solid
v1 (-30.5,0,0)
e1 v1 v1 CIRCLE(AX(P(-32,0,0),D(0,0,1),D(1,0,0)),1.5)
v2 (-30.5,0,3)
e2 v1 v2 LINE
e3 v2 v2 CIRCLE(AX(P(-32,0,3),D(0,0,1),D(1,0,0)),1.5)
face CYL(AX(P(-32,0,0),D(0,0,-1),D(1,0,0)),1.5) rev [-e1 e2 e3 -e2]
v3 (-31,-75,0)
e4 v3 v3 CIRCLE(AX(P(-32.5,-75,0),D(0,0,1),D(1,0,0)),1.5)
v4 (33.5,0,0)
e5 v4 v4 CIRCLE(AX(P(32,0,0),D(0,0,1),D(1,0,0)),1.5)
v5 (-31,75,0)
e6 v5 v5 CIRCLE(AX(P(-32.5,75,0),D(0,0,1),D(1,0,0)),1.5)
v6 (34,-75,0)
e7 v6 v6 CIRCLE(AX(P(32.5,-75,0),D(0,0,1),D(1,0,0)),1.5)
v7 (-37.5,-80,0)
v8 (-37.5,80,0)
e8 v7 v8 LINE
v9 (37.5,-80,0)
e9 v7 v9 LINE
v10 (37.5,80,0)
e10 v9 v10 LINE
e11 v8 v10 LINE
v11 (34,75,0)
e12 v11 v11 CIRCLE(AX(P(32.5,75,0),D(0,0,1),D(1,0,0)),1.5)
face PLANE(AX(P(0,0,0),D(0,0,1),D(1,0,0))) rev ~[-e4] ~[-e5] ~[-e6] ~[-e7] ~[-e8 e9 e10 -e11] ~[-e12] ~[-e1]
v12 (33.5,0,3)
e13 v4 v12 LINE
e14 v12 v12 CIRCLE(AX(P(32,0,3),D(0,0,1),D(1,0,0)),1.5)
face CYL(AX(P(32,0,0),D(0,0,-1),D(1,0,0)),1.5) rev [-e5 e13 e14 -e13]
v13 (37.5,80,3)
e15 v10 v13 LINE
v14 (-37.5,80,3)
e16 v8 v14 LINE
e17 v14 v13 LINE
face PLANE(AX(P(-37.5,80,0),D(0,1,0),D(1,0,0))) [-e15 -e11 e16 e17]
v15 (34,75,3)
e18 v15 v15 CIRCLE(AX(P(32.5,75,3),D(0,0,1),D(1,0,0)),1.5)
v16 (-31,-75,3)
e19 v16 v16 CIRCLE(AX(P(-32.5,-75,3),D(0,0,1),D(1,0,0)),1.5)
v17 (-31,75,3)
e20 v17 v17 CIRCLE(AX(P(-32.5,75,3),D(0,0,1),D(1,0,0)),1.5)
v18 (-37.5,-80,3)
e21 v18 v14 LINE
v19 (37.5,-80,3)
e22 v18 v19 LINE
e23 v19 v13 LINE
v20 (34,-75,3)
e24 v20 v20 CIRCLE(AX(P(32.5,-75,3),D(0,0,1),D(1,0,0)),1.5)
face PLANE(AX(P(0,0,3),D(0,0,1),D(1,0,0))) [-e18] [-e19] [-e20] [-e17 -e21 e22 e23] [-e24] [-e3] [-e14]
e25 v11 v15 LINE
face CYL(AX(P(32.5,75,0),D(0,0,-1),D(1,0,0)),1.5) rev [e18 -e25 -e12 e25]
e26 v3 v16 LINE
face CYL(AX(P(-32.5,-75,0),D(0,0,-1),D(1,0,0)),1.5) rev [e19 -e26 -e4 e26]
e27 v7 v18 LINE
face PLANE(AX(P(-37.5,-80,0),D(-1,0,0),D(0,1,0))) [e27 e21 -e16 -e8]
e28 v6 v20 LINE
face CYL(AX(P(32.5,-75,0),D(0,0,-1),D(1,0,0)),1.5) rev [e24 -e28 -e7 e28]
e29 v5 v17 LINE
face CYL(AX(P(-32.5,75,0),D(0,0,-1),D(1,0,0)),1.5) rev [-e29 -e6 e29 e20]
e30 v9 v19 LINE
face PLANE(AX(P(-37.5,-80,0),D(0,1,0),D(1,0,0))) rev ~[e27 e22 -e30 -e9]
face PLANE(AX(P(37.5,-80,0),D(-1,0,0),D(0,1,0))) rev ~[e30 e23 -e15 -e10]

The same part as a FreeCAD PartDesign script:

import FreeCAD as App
import Part
import Sketcher

V = App.Vector
Q = App.Units.Quantity

doc = App.newDocument("Part")
body = doc.addObject("PartDesign::Body", "Body")

# Sketch on XY plane
sketch1 = body.newObject("Sketcher::SketchObject", "Sketch")
sketch1.AttachmentSupport = (doc.getObject("XY_Plane"), [""])
sketch1.MapMode = "FlatFace"
sketch1.addGeometry([
    Part.LineSegment(V(-37.5, 80, 0), V(-37.5, -80, 0)),  # 0
    Part.LineSegment(V(-37.5, -80, 0), V(37.5, -80, 0)),  # 1
    Part.LineSegment(V(37.5, -80, 0), V(37.5, 80, 0)),  # 2
    Part.LineSegment(V(37.5, 80, 0), V(-37.5, 80, 0)),  # 3
    Part.Circle(V(-32.5, -75, 0), V(0, 0, 1), 1.5),  # 4
    Part.Circle(V(32.5, -75, 0), V(0, 0, 1), 1.5),  # 5
    Part.Circle(V(-32, 0, 0), V(0, 0, 1), 1.5),  # 6
    Part.Circle(V(-32.5, 75, 0), V(0, 0, 1), 1.5),  # 7
    Part.Circle(V(32, 0, 0), V(0, 0, 1), 1.5),  # 8
    Part.Circle(V(32.5, 75, 0), V(0, 0, 1), 1.5),  # 9
], False)
sketch1.addConstraint([
    Sketcher.Constraint("Coincident", 0, 2, 1, 1),
    Sketcher.Constraint("Coincident", 1, 2, 2, 1),
    Sketcher.Constraint("Coincident", 2, 2, 3, 1),
    Sketcher.Constraint("Coincident", 3, 2, 0, 1),
    Sketcher.Constraint("Vertical", 0),
    Sketcher.Constraint("Horizontal", 1),
    Sketcher.Constraint("Vertical", 2),
    Sketcher.Constraint("Horizontal", 3),
    Sketcher.Constraint("Equal", 4, 5),
    Sketcher.Constraint("Equal", 5, 6),
    Sketcher.Constraint("Equal", 6, 7),
    Sketcher.Constraint("Equal", 7, 8),
    Sketcher.Constraint("Equal", 8, 9),
    Sketcher.Constraint("Symmetric", 5, 3, 7, 3, -1, 1),
    Sketcher.Constraint("Symmetric", 6, 3, 8, 3, -1, 1),
    Sketcher.Constraint("Symmetric", 4, 3, 9, 3, -1, 1),
    Sketcher.Constraint("Symmetric", 0, 2, 2, 2, -1, 1),
    Sketcher.Constraint("Symmetric", 4, 3, 5, 3, -2),
    Sketcher.Constraint("PointOnObject", 6, 3, -1),
    Sketcher.Constraint("Diameter", 4, Q("3 mm")),
    Sketcher.Constraint("DistanceX", 1, 1, 1, 2, Q("75 mm")),
    Sketcher.Constraint("DistanceY", 0, 2, 0, 1, Q("160 mm")),
    Sketcher.Constraint("DistanceY", 4, 3, -1, 1, Q("75 mm")),
    Sketcher.Constraint("DistanceX", 6, 3, -1, 1, Q("32 mm")),
    Sketcher.Constraint("DistanceX", 4, 3, 5, 3, Q("65 mm")),
])
pad1 = body.newObject("PartDesign::Pad", "Pad")
pad1.Profile = sketch1
pad1.Length = 3

doc.recompute()
